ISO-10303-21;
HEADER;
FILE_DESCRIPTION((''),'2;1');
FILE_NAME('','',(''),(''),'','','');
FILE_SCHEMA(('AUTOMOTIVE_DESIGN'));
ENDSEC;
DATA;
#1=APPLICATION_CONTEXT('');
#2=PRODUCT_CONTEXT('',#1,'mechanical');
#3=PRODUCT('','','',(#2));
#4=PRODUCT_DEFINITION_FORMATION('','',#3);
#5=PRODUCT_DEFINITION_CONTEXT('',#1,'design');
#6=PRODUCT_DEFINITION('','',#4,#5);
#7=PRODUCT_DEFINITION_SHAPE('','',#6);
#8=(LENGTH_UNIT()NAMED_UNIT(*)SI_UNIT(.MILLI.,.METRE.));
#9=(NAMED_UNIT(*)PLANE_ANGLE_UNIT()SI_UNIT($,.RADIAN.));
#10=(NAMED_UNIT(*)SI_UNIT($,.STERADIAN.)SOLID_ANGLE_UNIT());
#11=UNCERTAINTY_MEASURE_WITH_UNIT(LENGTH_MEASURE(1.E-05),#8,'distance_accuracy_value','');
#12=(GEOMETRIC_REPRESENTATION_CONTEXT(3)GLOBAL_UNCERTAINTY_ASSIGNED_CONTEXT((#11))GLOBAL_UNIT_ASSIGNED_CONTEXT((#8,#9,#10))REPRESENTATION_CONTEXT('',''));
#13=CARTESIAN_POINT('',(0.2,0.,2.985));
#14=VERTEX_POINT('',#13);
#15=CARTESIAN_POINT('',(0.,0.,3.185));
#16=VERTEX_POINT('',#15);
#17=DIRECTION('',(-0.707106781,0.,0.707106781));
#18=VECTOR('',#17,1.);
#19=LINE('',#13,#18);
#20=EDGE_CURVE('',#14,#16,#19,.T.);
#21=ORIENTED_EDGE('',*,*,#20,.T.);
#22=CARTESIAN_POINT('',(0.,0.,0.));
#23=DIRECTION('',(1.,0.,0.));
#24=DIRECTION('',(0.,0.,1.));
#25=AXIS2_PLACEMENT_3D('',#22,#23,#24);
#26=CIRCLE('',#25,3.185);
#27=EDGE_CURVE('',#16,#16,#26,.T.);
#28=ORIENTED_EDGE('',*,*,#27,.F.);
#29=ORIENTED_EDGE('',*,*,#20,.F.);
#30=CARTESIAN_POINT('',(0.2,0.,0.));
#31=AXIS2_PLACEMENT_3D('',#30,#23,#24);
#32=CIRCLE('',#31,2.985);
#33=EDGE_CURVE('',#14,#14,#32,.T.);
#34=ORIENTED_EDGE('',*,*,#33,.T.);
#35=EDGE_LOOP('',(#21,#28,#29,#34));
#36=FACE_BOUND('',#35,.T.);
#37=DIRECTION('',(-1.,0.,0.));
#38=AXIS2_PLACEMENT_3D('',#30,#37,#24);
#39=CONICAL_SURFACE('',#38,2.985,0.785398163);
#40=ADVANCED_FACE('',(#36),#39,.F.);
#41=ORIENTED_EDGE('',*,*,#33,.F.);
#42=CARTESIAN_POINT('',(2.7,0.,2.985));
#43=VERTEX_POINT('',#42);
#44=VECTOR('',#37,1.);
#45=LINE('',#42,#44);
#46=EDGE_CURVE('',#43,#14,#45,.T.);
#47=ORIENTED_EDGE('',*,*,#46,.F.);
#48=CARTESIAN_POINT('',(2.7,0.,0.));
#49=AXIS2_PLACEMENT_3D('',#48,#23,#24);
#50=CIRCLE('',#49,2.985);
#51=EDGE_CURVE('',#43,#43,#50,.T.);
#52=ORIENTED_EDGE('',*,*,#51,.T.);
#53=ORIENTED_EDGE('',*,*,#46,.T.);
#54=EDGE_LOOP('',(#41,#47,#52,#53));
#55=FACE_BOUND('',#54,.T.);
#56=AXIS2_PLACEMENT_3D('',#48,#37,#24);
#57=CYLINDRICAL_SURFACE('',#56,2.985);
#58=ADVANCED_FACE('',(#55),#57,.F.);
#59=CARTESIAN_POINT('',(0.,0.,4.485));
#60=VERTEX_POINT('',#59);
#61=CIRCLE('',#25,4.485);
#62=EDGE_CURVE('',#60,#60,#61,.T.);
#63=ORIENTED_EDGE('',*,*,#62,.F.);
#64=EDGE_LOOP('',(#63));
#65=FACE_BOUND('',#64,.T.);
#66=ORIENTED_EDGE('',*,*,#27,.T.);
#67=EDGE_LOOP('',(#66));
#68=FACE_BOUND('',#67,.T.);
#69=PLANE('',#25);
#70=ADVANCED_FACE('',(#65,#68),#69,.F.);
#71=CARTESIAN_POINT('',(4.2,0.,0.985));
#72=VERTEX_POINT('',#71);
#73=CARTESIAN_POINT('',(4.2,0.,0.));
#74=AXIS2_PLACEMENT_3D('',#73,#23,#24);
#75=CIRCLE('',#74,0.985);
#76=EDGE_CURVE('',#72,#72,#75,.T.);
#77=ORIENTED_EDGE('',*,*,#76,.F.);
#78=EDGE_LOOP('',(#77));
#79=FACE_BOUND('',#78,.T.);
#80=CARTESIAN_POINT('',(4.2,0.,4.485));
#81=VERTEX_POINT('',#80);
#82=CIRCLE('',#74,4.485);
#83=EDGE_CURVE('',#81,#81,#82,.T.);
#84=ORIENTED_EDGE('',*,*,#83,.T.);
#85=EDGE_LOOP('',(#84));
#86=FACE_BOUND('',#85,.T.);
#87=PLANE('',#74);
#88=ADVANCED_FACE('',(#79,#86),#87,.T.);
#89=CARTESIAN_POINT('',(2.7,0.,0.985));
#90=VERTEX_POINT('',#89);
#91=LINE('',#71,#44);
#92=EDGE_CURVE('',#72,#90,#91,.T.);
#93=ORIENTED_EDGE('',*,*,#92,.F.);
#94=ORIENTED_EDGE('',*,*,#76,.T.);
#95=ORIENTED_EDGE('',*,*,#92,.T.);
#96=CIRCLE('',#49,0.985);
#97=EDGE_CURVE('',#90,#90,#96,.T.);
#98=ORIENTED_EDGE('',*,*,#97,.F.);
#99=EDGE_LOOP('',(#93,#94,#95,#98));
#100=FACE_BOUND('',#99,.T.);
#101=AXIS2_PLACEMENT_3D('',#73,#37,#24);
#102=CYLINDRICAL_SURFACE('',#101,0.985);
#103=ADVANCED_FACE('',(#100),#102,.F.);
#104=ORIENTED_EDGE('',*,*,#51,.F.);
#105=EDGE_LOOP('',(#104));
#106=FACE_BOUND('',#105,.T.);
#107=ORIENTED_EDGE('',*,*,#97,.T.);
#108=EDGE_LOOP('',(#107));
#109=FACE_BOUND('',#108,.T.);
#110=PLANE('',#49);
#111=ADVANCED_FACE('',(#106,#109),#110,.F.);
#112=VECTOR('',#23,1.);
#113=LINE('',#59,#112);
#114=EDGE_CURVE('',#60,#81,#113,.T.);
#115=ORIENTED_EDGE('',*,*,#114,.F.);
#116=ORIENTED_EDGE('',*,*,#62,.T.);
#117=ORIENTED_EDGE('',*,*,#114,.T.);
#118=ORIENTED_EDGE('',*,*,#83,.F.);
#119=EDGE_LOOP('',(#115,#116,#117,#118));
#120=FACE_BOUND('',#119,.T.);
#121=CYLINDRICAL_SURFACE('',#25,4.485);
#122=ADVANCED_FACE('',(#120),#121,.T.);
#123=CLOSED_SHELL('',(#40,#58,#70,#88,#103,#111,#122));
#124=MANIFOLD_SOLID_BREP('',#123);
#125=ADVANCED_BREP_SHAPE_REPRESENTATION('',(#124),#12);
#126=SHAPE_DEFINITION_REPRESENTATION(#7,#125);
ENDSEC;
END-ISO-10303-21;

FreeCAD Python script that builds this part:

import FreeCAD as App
import Part
import Sketcher

V = App.Vector
Q = App.Units.Quantity


def edges_at(feature, points):
    """Names of the edges that pass closest to the given points."""
    edges = feature.Shape.Edges
    near = lambda p: min(range(len(edges)), key=lambda i: edges[i].distToShape(Part.Vertex(*p))[0])
    return sorted({f"Edge{near(p) + 1}" for p in points})


def add_polygon(sketch, points):
    """Adds a closed chain of lines whose ends are joined by coincident constraints."""
    first, n = sketch.GeometryCount, len(points)
    for a, b in zip(points, points[1:] + points[:1]):
        sketch.addGeometry(Part.LineSegment(App.Vector(*a, 0), App.Vector(*b, 0)), False)
    for i in range(n):
        sketch.addConstraint(Sketcher.Constraint("Coincident", first + i, 2, first + (i + 1) % n, 1))

doc = App.newDocument("Part")
body = doc.addObject("PartDesign::Body", "Body")

# Sketch on XZ plane
sketch1 = body.newObject("Sketcher::SketchObject", "Sketch")
sketch1.AttachmentSupport = (doc.getObject("XZ_Plane"), [""])
sketch1.MapMode = "FlatFace"
add_polygon(sketch1, [(4.2, 4.5), (0, 4.5), (0, 3), (2.7, 3), (2.7, 1), (4.2, 1)])  # lines 0-5
sketch1.addConstraint([
    Sketcher.Constraint("Horizontal", 0),
    Sketcher.Constraint("Vertical", 1),
    Sketcher.Constraint("Horizontal", 2),
    Sketcher.Constraint("Vertical", 3),
    Sketcher.Constraint("Horizontal", 4),
    Sketcher.Constraint("Vertical", 5),
    Sketcher.Constraint("PointOnObject", 0, 2, -2),
    Sketcher.Constraint("Equal", 4, 1),
    Sketcher.Constraint("DistanceY", 3, 2, 3, 1, Q("2 mm")),
    Sketcher.Constraint("DistanceX", 0, 2, 0, 1, Q("4.2 mm")),
    Sketcher.Constraint("DistanceX", 2, 1, 2, 2, Q("2.7 mm")),
    Sketcher.Constraint("DistanceY", -1, 1, 0, 2, Q("4.485 mm")),
])
revolution = body.newObject("PartDesign::Revolution", "Revolution")
revolution.Profile = sketch1
revolution.ReferenceAxis = (sketch1, ["H_Axis"])
revolution.Angle = 360
doc.recompute()

chamfer = body.newObject("PartDesign::Chamfer", "Chamfer")
chamfer.Base = (revolution, edges_at(revolution, [(0, 0, -2.985)]))
chamfer.Size = 0.2

doc.recompute()
